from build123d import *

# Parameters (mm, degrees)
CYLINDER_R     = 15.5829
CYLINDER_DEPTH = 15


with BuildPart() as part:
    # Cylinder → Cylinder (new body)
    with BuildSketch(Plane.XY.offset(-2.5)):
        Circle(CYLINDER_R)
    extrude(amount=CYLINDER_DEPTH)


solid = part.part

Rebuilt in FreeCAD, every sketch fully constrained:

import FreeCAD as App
import Part
import Sketcher

doc = App.newDocument("Part")
body = doc.addObject("PartDesign::Body", "Body")

# Sketch on XY plane
sketch1 = body.newObject("Sketcher::SketchObject", "Sketch")
sketch1.AttachmentSupport = (doc.getObject("XY_Plane"), [""])
sketch1.MapMode = "FlatFace"
sketch1.AttachmentOffset = App.Placement(App.Vector(0, 0, -2.5), App.Rotation())
sketch1.addGeometry(Part.Circle(App.Vector(0, 0, 0), App.Vector(0, 0, 1), 15.5829), False)
sketch1.addConstraint([
    Sketcher.Constraint("Coincident", 0, 3, -1, 1),
    Sketcher.Constraint("Diameter", 0, 31.1658),
])
pad1 = body.newObject("PartDesign::Pad", "Pad")
pad1.Profile = sketch1
pad1.Length = 15

doc.recompute()
